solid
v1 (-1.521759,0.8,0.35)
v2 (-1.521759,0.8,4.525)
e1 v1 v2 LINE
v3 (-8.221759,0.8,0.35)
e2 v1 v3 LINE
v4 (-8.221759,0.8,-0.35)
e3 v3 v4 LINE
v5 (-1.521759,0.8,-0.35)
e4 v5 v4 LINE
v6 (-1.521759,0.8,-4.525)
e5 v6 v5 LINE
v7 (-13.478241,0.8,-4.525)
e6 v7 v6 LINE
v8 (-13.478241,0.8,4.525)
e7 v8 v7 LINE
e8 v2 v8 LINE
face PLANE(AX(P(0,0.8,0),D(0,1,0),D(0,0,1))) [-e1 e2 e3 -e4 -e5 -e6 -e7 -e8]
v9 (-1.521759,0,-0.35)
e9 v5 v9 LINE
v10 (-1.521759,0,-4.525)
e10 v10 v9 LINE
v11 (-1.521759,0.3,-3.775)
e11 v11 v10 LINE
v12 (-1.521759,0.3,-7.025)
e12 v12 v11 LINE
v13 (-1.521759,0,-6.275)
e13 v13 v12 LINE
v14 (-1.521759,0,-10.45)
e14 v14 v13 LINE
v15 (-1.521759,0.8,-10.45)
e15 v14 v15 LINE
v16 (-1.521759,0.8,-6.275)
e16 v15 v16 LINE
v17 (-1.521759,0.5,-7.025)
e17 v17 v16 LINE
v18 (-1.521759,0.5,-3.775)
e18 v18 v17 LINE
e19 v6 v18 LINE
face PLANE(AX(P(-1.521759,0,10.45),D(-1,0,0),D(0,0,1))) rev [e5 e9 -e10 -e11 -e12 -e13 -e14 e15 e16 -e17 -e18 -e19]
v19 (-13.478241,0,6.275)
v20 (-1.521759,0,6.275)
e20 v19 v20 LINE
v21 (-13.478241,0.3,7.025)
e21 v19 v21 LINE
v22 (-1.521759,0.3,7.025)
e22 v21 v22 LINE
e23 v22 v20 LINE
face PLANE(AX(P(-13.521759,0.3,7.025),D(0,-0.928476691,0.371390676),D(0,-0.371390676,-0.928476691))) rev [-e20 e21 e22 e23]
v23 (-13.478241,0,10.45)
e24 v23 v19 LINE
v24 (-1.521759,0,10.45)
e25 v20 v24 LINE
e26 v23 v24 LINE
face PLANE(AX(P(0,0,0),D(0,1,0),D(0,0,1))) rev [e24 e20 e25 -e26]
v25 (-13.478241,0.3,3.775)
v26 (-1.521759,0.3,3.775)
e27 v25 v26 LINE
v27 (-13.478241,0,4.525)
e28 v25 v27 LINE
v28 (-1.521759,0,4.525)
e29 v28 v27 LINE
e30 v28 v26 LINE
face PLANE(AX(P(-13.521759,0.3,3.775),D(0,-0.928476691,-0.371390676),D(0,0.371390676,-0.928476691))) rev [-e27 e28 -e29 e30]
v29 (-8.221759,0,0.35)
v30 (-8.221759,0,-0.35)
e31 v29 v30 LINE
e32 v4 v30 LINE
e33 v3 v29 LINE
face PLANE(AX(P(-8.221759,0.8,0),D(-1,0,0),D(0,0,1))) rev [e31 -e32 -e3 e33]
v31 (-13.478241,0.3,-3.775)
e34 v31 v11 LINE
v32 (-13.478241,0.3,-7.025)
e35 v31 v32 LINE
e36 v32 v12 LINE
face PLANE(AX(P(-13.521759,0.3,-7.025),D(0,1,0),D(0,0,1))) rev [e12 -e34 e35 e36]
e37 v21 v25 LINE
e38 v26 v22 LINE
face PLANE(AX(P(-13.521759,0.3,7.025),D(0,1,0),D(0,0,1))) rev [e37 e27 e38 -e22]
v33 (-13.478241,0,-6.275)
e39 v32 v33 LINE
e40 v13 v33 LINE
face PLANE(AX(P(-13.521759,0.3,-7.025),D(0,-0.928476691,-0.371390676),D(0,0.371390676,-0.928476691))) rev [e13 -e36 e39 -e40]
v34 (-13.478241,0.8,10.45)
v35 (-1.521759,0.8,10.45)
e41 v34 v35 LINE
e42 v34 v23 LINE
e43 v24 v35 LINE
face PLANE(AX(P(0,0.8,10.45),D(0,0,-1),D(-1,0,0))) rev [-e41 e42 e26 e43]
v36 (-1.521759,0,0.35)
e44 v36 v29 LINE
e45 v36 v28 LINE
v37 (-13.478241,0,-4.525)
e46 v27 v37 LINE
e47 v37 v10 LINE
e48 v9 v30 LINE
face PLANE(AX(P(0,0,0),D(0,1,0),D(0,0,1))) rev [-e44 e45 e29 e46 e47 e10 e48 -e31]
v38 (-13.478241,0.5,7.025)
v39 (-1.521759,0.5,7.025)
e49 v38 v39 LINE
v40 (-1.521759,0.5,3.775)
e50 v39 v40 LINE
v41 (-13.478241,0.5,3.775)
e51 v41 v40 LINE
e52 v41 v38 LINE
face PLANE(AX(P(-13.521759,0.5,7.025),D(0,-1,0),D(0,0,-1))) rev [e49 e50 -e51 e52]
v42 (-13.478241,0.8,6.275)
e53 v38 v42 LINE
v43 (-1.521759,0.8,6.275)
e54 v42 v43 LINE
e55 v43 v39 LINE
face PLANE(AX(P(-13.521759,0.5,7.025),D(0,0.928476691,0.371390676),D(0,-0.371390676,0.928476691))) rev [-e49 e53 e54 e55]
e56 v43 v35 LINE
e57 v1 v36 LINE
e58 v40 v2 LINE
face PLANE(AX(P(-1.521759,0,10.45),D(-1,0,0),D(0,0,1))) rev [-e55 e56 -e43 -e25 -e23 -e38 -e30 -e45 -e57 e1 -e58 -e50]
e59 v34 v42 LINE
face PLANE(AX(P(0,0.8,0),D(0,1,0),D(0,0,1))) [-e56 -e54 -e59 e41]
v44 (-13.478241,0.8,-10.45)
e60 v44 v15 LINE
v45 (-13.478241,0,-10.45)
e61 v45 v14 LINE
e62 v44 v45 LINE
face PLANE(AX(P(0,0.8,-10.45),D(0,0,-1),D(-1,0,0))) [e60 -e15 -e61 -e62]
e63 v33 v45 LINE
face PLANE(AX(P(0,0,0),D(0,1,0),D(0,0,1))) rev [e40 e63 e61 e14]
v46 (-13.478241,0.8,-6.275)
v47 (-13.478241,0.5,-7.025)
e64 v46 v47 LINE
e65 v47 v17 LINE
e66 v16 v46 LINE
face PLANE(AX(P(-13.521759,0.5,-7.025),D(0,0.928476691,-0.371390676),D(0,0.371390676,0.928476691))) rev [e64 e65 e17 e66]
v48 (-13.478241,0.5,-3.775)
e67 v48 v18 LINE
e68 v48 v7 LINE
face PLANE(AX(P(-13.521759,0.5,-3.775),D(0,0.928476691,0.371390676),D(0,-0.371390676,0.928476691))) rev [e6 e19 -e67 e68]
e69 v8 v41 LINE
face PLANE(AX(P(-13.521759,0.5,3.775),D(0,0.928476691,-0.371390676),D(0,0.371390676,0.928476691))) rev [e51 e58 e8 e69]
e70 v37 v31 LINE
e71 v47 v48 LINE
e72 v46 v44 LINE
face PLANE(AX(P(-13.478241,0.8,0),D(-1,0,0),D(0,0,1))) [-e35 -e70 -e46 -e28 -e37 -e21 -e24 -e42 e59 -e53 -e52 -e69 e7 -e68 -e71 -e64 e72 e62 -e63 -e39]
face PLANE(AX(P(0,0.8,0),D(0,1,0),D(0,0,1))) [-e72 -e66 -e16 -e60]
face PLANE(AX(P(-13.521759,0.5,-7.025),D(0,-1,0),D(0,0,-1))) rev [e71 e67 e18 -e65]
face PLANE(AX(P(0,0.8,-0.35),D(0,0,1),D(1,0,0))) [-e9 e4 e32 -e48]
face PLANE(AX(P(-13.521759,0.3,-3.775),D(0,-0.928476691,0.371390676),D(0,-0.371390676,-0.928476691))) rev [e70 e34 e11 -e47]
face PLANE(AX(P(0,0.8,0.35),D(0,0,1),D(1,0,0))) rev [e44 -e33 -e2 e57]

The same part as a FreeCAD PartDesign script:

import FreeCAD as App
import Part
import Sketcher

V = App.Vector


def add_polygon(sketch, points):
    """Adds a closed chain of lines whose ends are joined by coincident constraints."""
    first, n = sketch.GeometryCount, len(points)
    for a, b in zip(points, points[1:] + points[:1]):
        sketch.addGeometry(Part.LineSegment(App.Vector(*a, 0), App.Vector(*b, 0)), False)
    for i in range(n):
        sketch.addConstraint(Sketcher.Constraint("Coincident", first + i, 2, first + (i + 1) % n, 1))

doc = App.newDocument("Part")
body = doc.addObject("PartDesign::Body", "Body")

# Sketch on XZ plane
sketch1 = doc.addObject("Sketcher::SketchObject", "Sketch")
body.addObject(sketch1)
sketch1.AttachmentSupport = (doc.XZ_Plane, [""])
sketch1.MapMode = "FlatFace"
add_polygon(sketch1, [(13.478241, -10.45), (-13.478241, -10.45), (-13.478241, 10.45), (13.478241, 10.45), (13.478241, 0.35), (-8.221759, 0.35), (-8.221759, -0.35), (13.478241, -0.35)])  # lines 0-7
sketch1.addConstraint([
    Sketcher.Constraint("Horizontal", 0),
    Sketcher.Constraint("Vertical", 1),
    Sketcher.Constraint("Horizontal", 2),
    Sketcher.Constraint("Vertical", 3),
    Sketcher.Constraint("Horizontal", 4),
    Sketcher.Constraint("Vertical", 5),
    Sketcher.Constraint("Horizontal", 6),
    Sketcher.Constraint("Vertical", 7),
    Sketcher.Constraint("Symmetric", 0, 2, 2, 2, -1, 1),
    Sketcher.Constraint("Symmetric", 3, 2, 6, 2, -1),
    Sketcher.Constraint("DistanceX", 4, 2, 4, 1, 21.7),
    Sketcher.Constraint("DistanceY", 1, 1, 1, 2, 20.9),
    Sketcher.Constraint("DistanceY", 3, 2, 3, 1, 10.1),
    Sketcher.Constraint("DistanceX", 0, 2, 0, 1, 26.956481),
])
pad1 = doc.addObject("PartDesign::Pad", "Pad")
body.addObject(pad1)
pad1.Profile = sketch1
pad1.Length = 0.8
pad1.Reversed = True

# Sketch on YZ plane
sketch2 = doc.addObject("Sketcher::SketchObject", "Sketch001")
body.addObject(sketch2)
sketch2.AttachmentSupport = (doc.YZ_Plane, [""])
sketch2.MapMode = "FlatFace"
sketch2.AttachmentOffset = App.Placement(V(0, 0, 8.178241), App.Rotation())
add_polygon(sketch2, [(0.5, 7.025), (0.5, 3.775), (0.8, 4.525), (0.8, 6.275)])  # lines 0-3
add_polygon(sketch2, [(0.3, 7.025), (0, 6.275), (0, 4.525), (0.3, 3.775)])  # lines 4-7
add_polygon(sketch2, [(0.3, -7.025), (0.3, -3.775), (0, -4.525), (0, -6.275)])  # lines 8-11
add_polygon(sketch2, [(0.5, -7.025), (0.8, -6.275), (0.8, -4.525), (0.5, -3.775)])  # lines 12-15
sketch2.addConstraint([
    Sketcher.Constraint("Vertical", 0),
    Sketcher.Constraint("Vertical", 2),
    Sketcher.Constraint("Vertical", 5),
    Sketcher.Constraint("Vertical", 7),
    Sketcher.Constraint("Vertical", 8),
    Sketcher.Constraint("Vertical", 10),
    Sketcher.Constraint("Vertical", 13),
    Sketcher.Constraint("Vertical", 15),
    Sketcher.Constraint("Symmetric", 5, 2, 9, 2, -1, 1),
    Sketcher.Constraint("Symmetric", 6, 2, 8, 2, -1),
    Sketcher.Constraint("Symmetric", 4, 2, 10, 2, -1),
    Sketcher.Constraint("Symmetric", 2, 2, 12, 2, -1),
    Sketcher.Constraint("Symmetric", 0, 2, 14, 2, -1),
    Sketcher.Constraint("Parallel", 1, 4),
    Sketcher.Constraint("Parallel", 3, 6),
    Sketcher.Constraint("Parallel", 4, 9),
    Sketcher.Constraint("Parallel", 6, 11),
    Sketcher.Constraint("Parallel", 9, 12),
    Sketcher.Constraint("Parallel", 11, 14),
    Sketcher.Constraint("Horizontal", 2, 2, 4, 2),
    Sketcher.Constraint("Horizontal", 1, 2, 5, 2),
    Sketcher.Constraint("Horizontal", 0, 2, 6, 2),
    Sketcher.Constraint("DistanceY", 0, 2, 0, 1, 3.25),
    Sketcher.Constraint("DistanceY", 2, 1, 2, 2, 1.75),
    Sketcher.Constraint("DistanceX", -1, 1, 0, 2, 0.5),
    Sketcher.Constraint("DistanceX", -1, 1, 1, 2, 0.8),
    Sketcher.Constraint("DistanceY", 8, 2, 5, 2, 8.3),
])
pocket1 = doc.addObject("PartDesign::Pocket", "Pocket")
body.addObject(pocket1)
pocket1.Profile = sketch2
pocket1.Length = 21.7

# Sketch on XZ plane
sketch3 = doc.addObject("Sketcher::SketchObject", "Sketch002")
body.addObject(sketch3)
sketch3.AttachmentSupport = (doc.XZ_Plane, [""])
sketch3.MapMode = "FlatFace"
sketch3.AttachmentOffset = App.Placement(V(0, 0, -0.8), App.Rotation())
add_polygon(sketch3, [(-1.521759, -10.45), (-1.521759, 10.45), (13.478241, 10.45), (13.478241, -10.45)])  # lines 0-3
sketch3.addConstraint([
    Sketcher.Constraint("Vertical", 0),
    Sketcher.Constraint("Horizontal", 1),
    Sketcher.Constraint("Vertical", 2),
    Sketcher.Constraint("Horizontal", 3),
    Sketcher.Constraint("DistanceX", 1, 1, 1, 2, 15.0),
    Sketcher.Constraint("DistanceY", 0, 1, 0, 2, 20.9),
    Sketcher.Constraint("DistanceY", -1, 1, 0, 2, 10.45),
    Sketcher.Constraint("DistanceX", 0, 2, -1, 1, 1.521759),
])
pocket2 = doc.addObject("PartDesign::Pocket", "Pocket001")
body.addObject(pocket2)
pocket2.Profile = sketch3
pocket2.Type = "ThroughAll"
pocket2.Reversed = True

doc.recompute()
